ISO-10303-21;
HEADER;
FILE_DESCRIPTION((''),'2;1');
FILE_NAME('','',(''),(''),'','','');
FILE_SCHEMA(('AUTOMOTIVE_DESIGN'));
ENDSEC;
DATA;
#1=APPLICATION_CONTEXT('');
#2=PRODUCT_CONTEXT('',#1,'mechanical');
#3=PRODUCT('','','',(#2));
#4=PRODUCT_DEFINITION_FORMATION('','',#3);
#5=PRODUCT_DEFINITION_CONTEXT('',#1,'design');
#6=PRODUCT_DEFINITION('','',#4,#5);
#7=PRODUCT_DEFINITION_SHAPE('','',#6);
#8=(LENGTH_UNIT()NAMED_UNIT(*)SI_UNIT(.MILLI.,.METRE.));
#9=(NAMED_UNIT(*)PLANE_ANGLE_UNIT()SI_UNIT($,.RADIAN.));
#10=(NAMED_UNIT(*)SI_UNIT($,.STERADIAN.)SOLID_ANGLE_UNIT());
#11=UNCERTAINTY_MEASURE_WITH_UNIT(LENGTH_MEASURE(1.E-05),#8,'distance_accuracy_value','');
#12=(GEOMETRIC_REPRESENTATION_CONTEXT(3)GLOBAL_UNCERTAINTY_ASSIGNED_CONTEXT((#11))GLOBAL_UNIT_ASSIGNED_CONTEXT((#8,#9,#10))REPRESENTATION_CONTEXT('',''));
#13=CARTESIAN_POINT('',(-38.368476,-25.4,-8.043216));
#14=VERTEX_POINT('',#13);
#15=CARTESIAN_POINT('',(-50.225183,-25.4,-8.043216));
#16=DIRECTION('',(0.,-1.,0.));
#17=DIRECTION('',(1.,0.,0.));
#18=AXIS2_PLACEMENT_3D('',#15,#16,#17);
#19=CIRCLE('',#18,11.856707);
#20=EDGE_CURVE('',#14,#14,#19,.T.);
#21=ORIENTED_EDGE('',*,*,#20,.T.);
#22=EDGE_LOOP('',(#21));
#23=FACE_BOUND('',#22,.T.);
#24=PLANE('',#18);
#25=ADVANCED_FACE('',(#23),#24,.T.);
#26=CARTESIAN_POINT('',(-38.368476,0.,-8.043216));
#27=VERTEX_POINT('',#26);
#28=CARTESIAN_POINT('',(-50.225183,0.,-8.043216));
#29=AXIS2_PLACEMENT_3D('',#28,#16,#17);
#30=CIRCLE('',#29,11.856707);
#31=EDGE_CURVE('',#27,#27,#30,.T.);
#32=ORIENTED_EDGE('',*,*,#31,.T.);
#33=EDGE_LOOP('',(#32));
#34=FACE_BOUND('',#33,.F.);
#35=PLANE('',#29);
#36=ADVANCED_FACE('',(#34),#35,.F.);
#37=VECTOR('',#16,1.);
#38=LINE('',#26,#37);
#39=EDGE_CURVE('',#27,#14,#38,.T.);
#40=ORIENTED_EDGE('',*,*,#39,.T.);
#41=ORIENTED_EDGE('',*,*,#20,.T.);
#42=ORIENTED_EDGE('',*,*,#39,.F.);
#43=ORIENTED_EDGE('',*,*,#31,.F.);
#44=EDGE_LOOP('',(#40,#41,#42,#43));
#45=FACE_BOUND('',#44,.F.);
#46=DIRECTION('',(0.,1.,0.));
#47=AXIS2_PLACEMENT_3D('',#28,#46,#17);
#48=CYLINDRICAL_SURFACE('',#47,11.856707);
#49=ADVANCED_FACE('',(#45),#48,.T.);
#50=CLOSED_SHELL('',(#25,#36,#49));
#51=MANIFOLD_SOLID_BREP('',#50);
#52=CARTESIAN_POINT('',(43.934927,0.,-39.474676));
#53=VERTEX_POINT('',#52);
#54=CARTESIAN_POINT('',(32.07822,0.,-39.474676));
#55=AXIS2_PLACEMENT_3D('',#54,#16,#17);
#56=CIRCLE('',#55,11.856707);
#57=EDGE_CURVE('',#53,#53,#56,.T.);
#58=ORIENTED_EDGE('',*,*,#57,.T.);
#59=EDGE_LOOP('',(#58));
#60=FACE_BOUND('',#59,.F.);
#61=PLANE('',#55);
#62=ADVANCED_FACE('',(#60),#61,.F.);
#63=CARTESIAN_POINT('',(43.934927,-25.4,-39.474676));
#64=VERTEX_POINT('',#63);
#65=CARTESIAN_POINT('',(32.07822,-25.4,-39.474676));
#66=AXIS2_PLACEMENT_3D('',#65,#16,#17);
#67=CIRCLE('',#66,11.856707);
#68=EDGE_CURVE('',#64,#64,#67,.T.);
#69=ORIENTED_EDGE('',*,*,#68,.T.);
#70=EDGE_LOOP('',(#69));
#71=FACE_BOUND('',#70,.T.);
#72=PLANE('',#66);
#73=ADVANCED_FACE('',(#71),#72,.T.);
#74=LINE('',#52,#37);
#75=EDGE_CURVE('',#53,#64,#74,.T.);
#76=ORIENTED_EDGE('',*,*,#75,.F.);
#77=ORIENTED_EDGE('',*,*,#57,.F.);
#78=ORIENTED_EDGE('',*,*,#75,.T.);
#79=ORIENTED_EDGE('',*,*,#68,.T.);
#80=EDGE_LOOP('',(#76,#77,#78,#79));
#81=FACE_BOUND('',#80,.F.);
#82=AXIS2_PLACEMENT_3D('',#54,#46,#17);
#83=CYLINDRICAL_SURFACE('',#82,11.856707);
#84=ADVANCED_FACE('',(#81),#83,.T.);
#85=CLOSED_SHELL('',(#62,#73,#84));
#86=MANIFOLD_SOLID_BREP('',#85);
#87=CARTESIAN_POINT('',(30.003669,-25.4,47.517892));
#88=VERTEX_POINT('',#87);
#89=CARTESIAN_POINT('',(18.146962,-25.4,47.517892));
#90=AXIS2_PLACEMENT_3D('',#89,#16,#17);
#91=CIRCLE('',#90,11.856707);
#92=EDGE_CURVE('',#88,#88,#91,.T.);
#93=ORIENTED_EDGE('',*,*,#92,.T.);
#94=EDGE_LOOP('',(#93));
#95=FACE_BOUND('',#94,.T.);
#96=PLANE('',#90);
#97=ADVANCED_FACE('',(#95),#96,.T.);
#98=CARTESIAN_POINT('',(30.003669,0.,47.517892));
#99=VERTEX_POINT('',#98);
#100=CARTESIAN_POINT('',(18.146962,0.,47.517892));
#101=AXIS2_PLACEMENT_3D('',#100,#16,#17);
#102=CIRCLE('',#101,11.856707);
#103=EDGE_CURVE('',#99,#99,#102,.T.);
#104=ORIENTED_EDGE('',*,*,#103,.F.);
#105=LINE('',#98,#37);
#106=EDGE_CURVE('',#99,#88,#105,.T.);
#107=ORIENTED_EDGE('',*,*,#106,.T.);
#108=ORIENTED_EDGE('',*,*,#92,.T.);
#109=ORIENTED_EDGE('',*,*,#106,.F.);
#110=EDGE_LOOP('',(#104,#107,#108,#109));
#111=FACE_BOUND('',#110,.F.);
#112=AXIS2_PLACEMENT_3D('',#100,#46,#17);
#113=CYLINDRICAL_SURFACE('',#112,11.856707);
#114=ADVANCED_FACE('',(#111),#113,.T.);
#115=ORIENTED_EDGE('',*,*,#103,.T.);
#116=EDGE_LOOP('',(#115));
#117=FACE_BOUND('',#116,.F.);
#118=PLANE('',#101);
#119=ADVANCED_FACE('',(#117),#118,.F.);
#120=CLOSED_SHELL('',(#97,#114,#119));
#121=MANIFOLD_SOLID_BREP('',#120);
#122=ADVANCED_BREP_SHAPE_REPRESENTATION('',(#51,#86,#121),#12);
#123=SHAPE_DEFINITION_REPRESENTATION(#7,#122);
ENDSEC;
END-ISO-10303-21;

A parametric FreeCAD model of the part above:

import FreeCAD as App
import Part
import Sketcher

V = App.Vector

doc = App.newDocument("Part")
params = doc.addObject("Spreadsheet::Sheet", "Params")
for row, (alias, value) in enumerate([
    ("pad1_length", "1 in"),
], start=1):
    params.set(f"A{row}", alias)
    params.set(f"B{row}", "=" + value)
    params.setAlias(f"B{row}", alias)

body = doc.addObject("PartDesign::Body", "Body")
body.AllowCompound = True

# Sketch on XZ plane
sketch1 = body.newObject("Sketcher::SketchObject", "Sketch")
sketch1.AttachmentSupport = (doc.getObject("XZ_Plane"), [""])
sketch1.MapMode = "FlatFace"
sketch1.addGeometry(Part.Circle(V(18.146962, 47.517892, 0), V(0, 0, 1), 11.856707), False)
sketch1.addGeometry(Part.Circle(V(-50.225183, -8.043216, 0), V(0, 0, 1), 11.856707), False)
sketch1.addGeometry(Part.Circle(V(32.07822, -39.474676, 0), V(0, 0, 1), 11.856707), False)
sketch1.addConstraint(Sketcher.Constraint("Equal", 0, 1))
sketch1.addConstraint(Sketcher.Constraint("Equal", 1, 2))
sketch1.addConstraint(Sketcher.Constraint("Diameter", 0, 23.713414))
sketch1.addConstraint(Sketcher.Constraint("DistanceX", -1, 1, 0, 3, 18.146962))
sketch1.addConstraint(Sketcher.Constraint("DistanceX", -1, 1, 2, 3, 32.07822))
sketch1.addConstraint(Sketcher.Constraint("DistanceY", 1, 3, 0, 3, 55.561108))
sketch1.addConstraint(Sketcher.Constraint("DistanceY", 2, 3, 1, 3, 31.43146))
sketch1.addConstraint(Sketcher.Constraint("DistanceY", -1, 1, 0, 3, 47.517892))
sketch1.addConstraint(Sketcher.Constraint("DistanceX", 1, 3, -1, 1, 50.225183))
pad1 = body.newObject("PartDesign::Pad", "Pad")
pad1.Profile = sketch1
pad1.setExpression("Length", "Params.pad1_length")

doc.recompute()
